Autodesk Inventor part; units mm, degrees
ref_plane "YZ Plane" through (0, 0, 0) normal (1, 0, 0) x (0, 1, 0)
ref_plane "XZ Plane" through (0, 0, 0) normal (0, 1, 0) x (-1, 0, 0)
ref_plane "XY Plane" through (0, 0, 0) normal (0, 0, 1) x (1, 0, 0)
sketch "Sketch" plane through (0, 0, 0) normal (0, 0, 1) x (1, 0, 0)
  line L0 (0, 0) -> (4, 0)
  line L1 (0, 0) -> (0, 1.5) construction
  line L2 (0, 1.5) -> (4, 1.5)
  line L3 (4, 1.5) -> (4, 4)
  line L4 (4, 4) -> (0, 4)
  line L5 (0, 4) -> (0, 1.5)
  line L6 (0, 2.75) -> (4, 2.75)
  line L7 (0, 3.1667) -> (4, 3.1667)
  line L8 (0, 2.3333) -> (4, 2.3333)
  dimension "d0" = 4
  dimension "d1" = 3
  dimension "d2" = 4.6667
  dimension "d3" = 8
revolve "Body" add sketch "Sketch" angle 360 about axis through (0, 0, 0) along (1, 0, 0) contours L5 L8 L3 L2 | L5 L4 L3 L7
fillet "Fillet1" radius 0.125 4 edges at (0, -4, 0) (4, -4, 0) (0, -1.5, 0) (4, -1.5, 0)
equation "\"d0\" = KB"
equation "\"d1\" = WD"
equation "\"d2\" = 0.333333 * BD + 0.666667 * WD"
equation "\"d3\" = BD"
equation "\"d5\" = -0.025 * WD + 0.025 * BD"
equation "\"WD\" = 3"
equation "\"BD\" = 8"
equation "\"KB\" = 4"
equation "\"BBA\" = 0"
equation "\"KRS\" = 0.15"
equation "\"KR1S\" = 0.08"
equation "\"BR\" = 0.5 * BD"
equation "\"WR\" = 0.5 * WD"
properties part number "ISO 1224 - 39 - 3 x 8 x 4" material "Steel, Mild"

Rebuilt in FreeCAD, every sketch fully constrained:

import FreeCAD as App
import Part
import Sketcher


def edges_at(feature, points):
    """Names of the edges that pass closest to the given points."""
    edges = feature.Shape.Edges
    near = lambda p: min(range(len(edges)), key=lambda i: edges[i].distToShape(Part.Vertex(*p))[0])
    return sorted({f"Edge{near(p) + 1}" for p in points})


def add_polygon(sketch, points):
    """Adds a closed chain of lines whose ends are joined by coincident constraints."""
    first, n = sketch.GeometryCount, len(points)
    for a, b in zip(points, points[1:] + points[:1]):
        sketch.addGeometry(Part.LineSegment(App.Vector(*a, 0), App.Vector(*b, 0)), False)
    for i in range(n):
        sketch.addConstraint(Sketcher.Constraint("Coincident", first + i, 2, first + (i + 1) % n, 1))

doc = App.newDocument("Part")
body = doc.addObject("PartDesign::Body", "Body")
body.AllowCompound = True

sketch1 = body.newObject("Sketcher::SketchObject", "Sketch")
sketch1.AttachmentSupport = (doc.getObject("XY_Plane"), [""])
sketch1.MapMode = "FlatFace"
add_polygon(sketch1, [(0, 2.3), (0, 1.5), (4, 1.5), (4, 2.3)])
add_polygon(sketch1, [(0, 4), (0, 3.2), (4, 3.2), (4, 4)])
sketch1.addConstraint([
    Sketcher.Constraint("Vertical", 0),
    Sketcher.Constraint("Horizontal", 1),
    Sketcher.Constraint("Vertical", 2),
    Sketcher.Constraint("Horizontal", 3),
    Sketcher.Constraint("Vertical", 4),
    Sketcher.Constraint("Horizontal", 5),
    Sketcher.Constraint("Vertical", 6),
    Sketcher.Constraint("Horizontal", 7),
    Sketcher.Constraint("PointOnObject", 0, 2, -2),
    Sketcher.Constraint("PointOnObject", 4, 2, -2),
    Sketcher.Constraint("Vertical", 2, 2, 5, 2),
    Sketcher.Constraint("Equal", 2, 4),
    Sketcher.Constraint("DistanceX", 1, 1, 1, 2, 4.0),
    Sketcher.Constraint("DistanceY", -1, 1, 6, 2, 4.0),
    Sketcher.Constraint("DistanceY", -1, 1, 0, 2, 1.5),
    Sketcher.Constraint("DistanceY", 0, 2, 0, 1, 0.8333),
])
revolution = body.newObject("PartDesign::Revolution", "Revolution")
revolution.Profile = sketch1
revolution.ReferenceAxis = (sketch1, ["H_Axis"])
revolution.Angle = 360
doc.recompute()

fillet = body.newObject("PartDesign::Fillet", "Fillet")
fillet.Base = (revolution, edges_at(revolution, [
    (0, -4, 0),
    (4, -4, 0),
    (0, -1.5, 0),
    (4, -1.5, 0),
]))
fillet.Radius = 0.125

doc.recompute()
